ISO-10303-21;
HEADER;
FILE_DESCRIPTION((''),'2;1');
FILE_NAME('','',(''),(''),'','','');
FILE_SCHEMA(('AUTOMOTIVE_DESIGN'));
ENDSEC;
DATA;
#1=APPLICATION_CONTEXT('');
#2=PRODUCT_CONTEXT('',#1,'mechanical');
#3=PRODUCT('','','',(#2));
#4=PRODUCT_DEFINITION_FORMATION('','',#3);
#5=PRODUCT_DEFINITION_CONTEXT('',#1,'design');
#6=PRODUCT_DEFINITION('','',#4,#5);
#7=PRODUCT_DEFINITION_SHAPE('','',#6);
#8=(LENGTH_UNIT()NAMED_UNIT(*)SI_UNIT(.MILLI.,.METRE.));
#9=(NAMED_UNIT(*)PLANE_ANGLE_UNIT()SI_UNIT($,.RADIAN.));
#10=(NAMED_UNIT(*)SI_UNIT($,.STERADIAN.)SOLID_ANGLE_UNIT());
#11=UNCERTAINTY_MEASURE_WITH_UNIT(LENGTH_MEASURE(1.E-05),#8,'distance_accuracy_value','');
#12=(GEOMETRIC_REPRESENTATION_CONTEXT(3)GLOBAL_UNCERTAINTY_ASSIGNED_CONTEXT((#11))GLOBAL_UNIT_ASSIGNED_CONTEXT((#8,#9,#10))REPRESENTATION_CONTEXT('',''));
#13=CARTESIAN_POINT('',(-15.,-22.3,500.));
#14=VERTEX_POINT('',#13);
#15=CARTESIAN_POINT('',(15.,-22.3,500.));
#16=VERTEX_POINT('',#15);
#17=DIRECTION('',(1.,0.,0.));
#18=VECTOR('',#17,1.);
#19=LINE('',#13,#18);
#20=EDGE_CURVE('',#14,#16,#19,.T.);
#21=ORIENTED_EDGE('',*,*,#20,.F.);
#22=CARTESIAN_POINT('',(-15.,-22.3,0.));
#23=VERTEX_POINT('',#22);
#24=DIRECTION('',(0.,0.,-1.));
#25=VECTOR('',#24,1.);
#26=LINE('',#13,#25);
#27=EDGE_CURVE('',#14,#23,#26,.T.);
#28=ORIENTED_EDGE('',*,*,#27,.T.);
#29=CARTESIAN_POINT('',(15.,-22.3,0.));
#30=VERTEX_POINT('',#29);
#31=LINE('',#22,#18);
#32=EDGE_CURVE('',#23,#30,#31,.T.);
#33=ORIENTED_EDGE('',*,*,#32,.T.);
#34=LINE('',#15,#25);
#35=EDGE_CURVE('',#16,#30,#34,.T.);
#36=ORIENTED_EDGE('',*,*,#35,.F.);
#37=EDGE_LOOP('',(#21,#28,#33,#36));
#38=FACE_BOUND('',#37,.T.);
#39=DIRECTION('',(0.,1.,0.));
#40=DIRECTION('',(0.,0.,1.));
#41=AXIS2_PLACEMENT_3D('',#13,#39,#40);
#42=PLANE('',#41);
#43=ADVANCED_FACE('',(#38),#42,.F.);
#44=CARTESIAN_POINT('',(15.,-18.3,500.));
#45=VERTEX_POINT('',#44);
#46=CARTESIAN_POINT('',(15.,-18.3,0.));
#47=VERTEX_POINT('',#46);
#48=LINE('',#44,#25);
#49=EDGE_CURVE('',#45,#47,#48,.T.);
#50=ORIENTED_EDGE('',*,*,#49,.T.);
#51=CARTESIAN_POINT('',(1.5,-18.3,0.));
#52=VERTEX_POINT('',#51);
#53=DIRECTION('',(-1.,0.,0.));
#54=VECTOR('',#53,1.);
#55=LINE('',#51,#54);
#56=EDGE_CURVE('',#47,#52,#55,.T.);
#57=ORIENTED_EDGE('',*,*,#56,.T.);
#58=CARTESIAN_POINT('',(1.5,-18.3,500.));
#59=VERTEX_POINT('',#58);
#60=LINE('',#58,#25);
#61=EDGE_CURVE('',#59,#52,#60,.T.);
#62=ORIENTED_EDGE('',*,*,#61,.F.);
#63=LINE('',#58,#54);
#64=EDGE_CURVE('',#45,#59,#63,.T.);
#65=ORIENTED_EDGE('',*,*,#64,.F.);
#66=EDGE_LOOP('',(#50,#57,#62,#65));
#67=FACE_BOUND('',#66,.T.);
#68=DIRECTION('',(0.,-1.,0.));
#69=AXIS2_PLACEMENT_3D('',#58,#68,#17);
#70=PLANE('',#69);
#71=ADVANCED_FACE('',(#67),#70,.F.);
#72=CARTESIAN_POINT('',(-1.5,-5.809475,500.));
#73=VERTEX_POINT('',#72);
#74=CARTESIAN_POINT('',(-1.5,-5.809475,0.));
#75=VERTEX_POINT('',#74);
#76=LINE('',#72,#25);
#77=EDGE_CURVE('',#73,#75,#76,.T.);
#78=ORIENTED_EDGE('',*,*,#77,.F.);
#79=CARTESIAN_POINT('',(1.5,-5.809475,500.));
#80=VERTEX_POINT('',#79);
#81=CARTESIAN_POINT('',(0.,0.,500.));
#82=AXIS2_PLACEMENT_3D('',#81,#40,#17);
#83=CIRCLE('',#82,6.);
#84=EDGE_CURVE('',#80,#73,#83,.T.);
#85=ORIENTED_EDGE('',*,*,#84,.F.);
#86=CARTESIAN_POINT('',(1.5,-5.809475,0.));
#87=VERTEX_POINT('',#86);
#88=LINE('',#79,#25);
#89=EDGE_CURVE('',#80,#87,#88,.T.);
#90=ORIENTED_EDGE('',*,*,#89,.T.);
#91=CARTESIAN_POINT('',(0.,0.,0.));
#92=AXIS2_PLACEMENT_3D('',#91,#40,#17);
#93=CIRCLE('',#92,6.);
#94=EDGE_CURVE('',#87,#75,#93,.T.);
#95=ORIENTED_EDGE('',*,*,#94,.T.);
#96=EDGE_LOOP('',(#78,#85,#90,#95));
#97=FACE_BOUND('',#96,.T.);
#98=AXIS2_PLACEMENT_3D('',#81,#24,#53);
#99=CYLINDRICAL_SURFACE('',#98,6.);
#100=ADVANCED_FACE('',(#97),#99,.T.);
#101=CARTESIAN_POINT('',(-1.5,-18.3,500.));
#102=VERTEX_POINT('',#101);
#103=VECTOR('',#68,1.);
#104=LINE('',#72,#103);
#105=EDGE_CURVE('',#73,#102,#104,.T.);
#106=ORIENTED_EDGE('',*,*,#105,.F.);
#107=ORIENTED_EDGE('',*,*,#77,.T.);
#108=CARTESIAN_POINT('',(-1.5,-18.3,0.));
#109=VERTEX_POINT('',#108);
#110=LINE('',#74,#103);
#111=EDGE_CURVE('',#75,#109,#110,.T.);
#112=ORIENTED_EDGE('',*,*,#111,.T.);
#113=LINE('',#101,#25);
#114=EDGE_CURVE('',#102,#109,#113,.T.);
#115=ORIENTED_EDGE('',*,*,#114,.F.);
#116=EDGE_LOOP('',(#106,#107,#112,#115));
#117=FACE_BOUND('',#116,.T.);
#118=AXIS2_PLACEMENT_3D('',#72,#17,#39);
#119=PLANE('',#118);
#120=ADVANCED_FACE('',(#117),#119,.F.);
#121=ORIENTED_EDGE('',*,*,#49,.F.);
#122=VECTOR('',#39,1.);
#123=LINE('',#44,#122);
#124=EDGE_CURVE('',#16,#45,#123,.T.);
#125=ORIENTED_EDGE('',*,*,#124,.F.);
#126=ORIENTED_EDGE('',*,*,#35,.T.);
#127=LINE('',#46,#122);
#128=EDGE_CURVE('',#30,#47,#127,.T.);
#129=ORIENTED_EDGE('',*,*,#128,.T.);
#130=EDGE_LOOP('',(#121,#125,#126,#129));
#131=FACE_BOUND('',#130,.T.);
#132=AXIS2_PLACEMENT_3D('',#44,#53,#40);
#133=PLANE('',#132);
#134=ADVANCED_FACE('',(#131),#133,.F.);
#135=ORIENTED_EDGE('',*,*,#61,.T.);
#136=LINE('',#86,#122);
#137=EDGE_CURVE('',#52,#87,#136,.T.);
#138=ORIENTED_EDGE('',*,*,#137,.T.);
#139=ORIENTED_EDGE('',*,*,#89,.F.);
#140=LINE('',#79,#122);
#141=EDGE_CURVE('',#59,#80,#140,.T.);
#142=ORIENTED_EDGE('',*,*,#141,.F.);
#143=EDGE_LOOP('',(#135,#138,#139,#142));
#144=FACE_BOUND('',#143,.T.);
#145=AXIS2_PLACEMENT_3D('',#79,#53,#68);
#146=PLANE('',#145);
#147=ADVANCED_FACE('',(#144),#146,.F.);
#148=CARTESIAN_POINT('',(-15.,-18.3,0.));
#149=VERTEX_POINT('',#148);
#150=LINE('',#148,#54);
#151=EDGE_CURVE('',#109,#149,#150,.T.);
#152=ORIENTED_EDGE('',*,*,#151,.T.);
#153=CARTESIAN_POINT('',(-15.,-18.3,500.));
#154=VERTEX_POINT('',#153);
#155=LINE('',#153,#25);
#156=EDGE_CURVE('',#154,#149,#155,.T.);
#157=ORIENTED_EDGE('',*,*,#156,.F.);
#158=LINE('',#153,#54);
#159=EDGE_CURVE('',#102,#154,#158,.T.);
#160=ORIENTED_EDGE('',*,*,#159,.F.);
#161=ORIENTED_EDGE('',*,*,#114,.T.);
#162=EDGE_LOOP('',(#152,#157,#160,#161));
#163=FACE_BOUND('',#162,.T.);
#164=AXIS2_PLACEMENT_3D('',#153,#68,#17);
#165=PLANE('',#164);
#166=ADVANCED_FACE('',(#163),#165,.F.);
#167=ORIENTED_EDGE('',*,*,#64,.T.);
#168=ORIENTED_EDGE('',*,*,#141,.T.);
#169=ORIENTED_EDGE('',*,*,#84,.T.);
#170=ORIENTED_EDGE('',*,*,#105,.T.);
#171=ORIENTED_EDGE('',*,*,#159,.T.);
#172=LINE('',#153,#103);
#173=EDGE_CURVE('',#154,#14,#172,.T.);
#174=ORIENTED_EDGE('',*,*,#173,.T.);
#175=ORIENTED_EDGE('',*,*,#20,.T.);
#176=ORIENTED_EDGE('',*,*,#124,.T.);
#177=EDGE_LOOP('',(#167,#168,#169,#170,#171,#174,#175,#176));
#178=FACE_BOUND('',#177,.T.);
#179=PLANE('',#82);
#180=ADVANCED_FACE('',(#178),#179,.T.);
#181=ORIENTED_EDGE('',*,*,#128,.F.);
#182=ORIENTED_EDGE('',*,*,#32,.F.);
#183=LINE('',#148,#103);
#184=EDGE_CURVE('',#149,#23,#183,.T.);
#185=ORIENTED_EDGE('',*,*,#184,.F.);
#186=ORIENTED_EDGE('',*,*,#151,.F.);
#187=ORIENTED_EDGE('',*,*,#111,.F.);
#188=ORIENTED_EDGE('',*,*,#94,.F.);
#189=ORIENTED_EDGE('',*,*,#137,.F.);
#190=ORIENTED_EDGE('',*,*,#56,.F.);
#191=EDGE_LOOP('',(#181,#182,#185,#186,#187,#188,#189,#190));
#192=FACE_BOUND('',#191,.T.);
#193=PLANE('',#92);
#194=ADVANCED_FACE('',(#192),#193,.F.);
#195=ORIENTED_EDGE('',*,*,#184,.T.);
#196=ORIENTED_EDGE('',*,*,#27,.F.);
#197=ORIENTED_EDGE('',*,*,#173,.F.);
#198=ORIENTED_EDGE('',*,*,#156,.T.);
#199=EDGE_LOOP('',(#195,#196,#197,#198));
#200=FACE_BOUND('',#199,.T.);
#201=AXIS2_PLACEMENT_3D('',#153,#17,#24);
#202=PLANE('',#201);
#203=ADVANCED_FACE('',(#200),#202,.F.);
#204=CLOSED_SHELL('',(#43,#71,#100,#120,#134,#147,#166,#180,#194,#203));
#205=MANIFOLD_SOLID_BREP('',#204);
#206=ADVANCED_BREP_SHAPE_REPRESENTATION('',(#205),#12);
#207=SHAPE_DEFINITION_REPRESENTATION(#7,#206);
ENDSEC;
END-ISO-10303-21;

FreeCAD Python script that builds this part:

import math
import FreeCAD as App
import Part
import Sketcher

V = App.Vector
Q = App.Units.Quantity

doc = App.newDocument("Part")
params = doc.addObject("Spreadsheet::Sheet", "Params")
for row, (alias, value) in enumerate([
    ("sketch1_radius", "6 mm"),
    ("sketch1_width", "30 mm"),
    ("sketch1_height", "4 mm"),
    ("sketch1_width2", "13.5 mm"),
    ("pad1_length", "500 mm"),
], start=1):
    params.set(f"A{row}", alias)
    params.set(f"B{row}", "=" + value)
    params.setAlias(f"B{row}", alias)

body = doc.addObject("PartDesign::Body", "Body")

sketch1 = body.newObject("Sketcher::SketchObject", "Sketch")
sketch1.AttachmentSupport = (doc.getObject("XY_Plane"), [""])
sketch1.MapMode = "FlatFace"
sketch1.addGeometry([
    Part.LineSegment(V(15, -18.3, 0), V(1.5, -18.3, 0)),
    Part.LineSegment(V(1.5, -18.3, 0), V(1.5, -5.8, 0)),
    Part.ArcOfCircle(Part.Circle(V(0, 0, 0), V(0, 0, 1), 6), math.radians(-76), math.radians(256)),
    Part.LineSegment(V(-1.5, -5.8, 0), V(-1.5, -18.3, 0)),
    Part.LineSegment(V(-1.5, -18.3, 0), V(-15, -18.3, 0)),
    Part.LineSegment(V(-15, -18.3, 0), V(-15, -22.3, 0)),
    Part.LineSegment(V(-15, -22.3, 0), V(15, -22.3, 0)),
    Part.LineSegment(V(15, -22.3, 0), V(15, -18.3, 0)),
], False)
sketch1.addConstraint([
    Sketcher.Constraint("Coincident", 0, 2, 1, 1),
    Sketcher.Constraint("Coincident", 1, 2, 2, 1),
    Sketcher.Constraint("Coincident", 2, 2, 3, 1),
    Sketcher.Constraint("Coincident", 3, 2, 4, 1),
    Sketcher.Constraint("Coincident", 4, 2, 5, 1),
    Sketcher.Constraint("Coincident", 5, 2, 6, 1),
    Sketcher.Constraint("Coincident", 6, 2, 7, 1),
    Sketcher.Constraint("Coincident", 7, 2, 0, 1),
    Sketcher.Constraint("Horizontal", 0),
    Sketcher.Constraint("Vertical", 1),
    Sketcher.Constraint("Vertical", 3),
    Sketcher.Constraint("Horizontal", 4),
    Sketcher.Constraint("Vertical", 5),
    Sketcher.Constraint("Horizontal", 6),
    Sketcher.Constraint("Vertical", 7),
    Sketcher.Constraint("Coincident", 2, 3, -1, 1),
    Sketcher.Constraint("Symmetric", 0, 2, 3, 2, -2),
    Sketcher.Constraint("Equal", 0, 4),
    Sketcher.Constraint("Radius", 2, Q("6 mm")),
    Sketcher.Constraint("DistanceX", 6, 1, 6, 2, Q("30 mm")),
    Sketcher.Constraint("DistanceY", 5, 2, 5, 1, Q("4 mm")),
    Sketcher.Constraint("DistanceX", 0, 2, 0, 1, Q("13.5 mm")),
    Sketcher.Constraint("DistanceY", 0, 2, -1, 1, Q("18.3 mm")),
])
sketch1.setExpression("Constraints[18]", "Params.sketch1_radius")
sketch1.setExpression("Constraints[19]", "Params.sketch1_width")
sketch1.setExpression("Constraints[20]", "Params.sketch1_height")
sketch1.setExpression("Constraints[21]", "Params.sketch1_width2")
pad1 = body.newObject("PartDesign::Pad", "Pad")
pad1.Profile = sketch1
pad1.setExpression("Length", "Params.pad1_length")

doc.recompute()
